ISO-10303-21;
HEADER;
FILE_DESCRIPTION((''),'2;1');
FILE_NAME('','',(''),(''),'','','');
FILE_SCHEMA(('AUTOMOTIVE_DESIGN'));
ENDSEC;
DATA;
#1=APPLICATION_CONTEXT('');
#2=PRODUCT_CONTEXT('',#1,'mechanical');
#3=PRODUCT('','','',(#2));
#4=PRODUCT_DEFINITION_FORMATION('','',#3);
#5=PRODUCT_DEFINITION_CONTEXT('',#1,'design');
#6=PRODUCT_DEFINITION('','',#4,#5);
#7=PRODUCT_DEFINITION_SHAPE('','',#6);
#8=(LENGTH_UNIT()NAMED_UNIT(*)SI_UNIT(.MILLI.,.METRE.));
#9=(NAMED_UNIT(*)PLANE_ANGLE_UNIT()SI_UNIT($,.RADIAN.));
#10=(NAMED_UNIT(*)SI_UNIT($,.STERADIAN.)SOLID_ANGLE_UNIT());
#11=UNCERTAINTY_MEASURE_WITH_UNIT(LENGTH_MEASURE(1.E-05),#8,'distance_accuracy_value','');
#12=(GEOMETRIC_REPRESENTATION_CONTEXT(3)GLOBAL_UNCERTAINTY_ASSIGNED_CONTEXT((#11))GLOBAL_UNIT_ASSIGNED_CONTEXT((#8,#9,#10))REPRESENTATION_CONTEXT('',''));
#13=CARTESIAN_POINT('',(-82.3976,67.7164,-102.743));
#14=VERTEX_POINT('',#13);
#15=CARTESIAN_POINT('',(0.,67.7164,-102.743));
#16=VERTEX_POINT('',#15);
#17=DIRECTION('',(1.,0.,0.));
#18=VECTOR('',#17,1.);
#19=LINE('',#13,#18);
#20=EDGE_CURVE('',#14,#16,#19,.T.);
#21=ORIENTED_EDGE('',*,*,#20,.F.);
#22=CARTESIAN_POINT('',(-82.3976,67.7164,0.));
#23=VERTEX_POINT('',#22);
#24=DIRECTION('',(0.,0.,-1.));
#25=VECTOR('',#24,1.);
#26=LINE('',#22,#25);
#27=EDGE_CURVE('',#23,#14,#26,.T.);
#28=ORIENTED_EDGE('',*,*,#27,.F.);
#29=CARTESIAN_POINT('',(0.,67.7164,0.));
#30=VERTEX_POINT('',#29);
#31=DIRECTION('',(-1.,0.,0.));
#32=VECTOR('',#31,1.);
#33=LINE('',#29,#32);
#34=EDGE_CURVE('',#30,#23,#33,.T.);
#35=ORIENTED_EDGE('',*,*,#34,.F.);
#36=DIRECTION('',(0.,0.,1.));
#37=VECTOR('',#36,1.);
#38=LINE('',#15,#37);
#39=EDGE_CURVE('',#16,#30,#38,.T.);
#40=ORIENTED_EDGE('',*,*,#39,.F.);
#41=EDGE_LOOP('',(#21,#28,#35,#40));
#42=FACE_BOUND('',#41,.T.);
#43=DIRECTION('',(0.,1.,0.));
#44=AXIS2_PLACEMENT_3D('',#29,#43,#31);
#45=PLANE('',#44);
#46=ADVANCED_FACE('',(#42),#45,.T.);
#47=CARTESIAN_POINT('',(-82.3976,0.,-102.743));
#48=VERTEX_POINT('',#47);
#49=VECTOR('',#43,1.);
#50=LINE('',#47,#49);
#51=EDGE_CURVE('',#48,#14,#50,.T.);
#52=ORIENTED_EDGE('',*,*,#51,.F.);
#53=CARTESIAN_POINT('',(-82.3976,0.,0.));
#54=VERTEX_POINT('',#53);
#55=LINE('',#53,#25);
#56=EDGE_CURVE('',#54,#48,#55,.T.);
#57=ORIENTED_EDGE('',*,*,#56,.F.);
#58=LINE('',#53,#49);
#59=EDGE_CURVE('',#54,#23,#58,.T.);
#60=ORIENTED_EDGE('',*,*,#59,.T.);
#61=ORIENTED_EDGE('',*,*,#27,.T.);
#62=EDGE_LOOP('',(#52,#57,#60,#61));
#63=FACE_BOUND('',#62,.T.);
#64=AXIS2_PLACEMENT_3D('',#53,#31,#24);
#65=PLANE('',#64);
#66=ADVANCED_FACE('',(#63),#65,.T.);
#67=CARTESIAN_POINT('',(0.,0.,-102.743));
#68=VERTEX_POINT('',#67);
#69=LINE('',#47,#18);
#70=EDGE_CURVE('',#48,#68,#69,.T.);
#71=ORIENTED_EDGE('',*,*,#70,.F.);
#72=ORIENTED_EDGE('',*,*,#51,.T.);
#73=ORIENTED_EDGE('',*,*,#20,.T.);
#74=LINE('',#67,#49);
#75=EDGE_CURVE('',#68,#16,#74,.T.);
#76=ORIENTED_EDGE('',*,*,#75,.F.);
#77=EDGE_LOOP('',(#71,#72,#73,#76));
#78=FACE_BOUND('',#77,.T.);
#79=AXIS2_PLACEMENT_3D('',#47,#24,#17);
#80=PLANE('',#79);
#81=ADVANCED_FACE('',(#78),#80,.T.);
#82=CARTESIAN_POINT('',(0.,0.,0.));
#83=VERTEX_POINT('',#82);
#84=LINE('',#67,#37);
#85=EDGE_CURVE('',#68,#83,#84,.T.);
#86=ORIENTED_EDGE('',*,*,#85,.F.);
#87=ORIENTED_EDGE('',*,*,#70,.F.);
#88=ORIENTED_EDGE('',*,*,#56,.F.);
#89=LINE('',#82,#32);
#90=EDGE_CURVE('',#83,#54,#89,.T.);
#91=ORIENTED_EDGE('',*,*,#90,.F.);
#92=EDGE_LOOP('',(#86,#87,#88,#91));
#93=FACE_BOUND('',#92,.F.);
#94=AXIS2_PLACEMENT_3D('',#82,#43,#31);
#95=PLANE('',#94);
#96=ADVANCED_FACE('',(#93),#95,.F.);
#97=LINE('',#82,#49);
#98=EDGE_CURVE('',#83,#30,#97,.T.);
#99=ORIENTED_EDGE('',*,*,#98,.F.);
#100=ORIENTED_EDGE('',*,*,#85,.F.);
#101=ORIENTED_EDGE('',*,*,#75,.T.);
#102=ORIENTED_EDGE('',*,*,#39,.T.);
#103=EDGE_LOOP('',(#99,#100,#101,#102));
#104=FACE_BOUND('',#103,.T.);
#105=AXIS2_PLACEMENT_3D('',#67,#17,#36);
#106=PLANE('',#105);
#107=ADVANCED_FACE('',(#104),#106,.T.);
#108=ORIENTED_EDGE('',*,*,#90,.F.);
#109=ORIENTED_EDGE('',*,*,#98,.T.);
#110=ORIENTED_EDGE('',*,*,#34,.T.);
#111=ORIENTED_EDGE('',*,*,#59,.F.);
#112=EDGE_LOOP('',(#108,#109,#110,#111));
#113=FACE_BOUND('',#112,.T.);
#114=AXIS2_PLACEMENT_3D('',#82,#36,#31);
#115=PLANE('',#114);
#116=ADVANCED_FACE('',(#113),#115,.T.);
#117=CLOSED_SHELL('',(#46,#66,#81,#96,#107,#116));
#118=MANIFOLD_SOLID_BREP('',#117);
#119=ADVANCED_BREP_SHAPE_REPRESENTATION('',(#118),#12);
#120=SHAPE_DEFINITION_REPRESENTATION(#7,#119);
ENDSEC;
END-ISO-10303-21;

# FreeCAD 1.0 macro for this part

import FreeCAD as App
import Part
import Sketcher
Q = App.Units.Quantity


def add_polygon(sketch, points):
    """Adds a closed chain of lines whose ends are joined by coincident constraints."""
    first, n = sketch.GeometryCount, len(points)
    for a, b in zip(points, points[1:] + points[:1]):
        sketch.addGeometry(Part.LineSegment(App.Vector(*a, 0), App.Vector(*b, 0)), False)
    for i in range(n):
        sketch.addConstraint(Sketcher.Constraint("Coincident", first + i, 2, first + (i + 1) % n, 1))

doc = App.newDocument("Part")
body = doc.addObject("PartDesign::Body", "Body")

# Sketch on XZ plane
sketch1 = body.newObject("Sketcher::SketchObject", "Sketch")
sketch1.AttachmentSupport = (doc.getObject("XZ_Plane"), [""])
sketch1.MapMode = "FlatFace"
add_polygon(sketch1, [(-82, 0), (0, 0), (0, -103), (-82, -103)])  # lines 0-3
sketch1.addConstraint([
    Sketcher.Constraint("Horizontal", 0),
    Sketcher.Constraint("Vertical", 1),
    Sketcher.Constraint("Horizontal", 2),
    Sketcher.Constraint("Vertical", 3),
    Sketcher.Constraint("Coincident", 0, 2, -1, 1),
    Sketcher.Constraint("DistanceX", 0, 1, 0, 2, Q("3.244 in")),
    Sketcher.Constraint("DistanceY", 1, 2, 1, 1, Q("4.045 in")),
])
pad1 = body.newObject("PartDesign::Pad", "Pad")
pad1.Profile = sketch1
pad1.Length = Q("2.666 in")
pad1.Reversed = True

doc.recompute()
